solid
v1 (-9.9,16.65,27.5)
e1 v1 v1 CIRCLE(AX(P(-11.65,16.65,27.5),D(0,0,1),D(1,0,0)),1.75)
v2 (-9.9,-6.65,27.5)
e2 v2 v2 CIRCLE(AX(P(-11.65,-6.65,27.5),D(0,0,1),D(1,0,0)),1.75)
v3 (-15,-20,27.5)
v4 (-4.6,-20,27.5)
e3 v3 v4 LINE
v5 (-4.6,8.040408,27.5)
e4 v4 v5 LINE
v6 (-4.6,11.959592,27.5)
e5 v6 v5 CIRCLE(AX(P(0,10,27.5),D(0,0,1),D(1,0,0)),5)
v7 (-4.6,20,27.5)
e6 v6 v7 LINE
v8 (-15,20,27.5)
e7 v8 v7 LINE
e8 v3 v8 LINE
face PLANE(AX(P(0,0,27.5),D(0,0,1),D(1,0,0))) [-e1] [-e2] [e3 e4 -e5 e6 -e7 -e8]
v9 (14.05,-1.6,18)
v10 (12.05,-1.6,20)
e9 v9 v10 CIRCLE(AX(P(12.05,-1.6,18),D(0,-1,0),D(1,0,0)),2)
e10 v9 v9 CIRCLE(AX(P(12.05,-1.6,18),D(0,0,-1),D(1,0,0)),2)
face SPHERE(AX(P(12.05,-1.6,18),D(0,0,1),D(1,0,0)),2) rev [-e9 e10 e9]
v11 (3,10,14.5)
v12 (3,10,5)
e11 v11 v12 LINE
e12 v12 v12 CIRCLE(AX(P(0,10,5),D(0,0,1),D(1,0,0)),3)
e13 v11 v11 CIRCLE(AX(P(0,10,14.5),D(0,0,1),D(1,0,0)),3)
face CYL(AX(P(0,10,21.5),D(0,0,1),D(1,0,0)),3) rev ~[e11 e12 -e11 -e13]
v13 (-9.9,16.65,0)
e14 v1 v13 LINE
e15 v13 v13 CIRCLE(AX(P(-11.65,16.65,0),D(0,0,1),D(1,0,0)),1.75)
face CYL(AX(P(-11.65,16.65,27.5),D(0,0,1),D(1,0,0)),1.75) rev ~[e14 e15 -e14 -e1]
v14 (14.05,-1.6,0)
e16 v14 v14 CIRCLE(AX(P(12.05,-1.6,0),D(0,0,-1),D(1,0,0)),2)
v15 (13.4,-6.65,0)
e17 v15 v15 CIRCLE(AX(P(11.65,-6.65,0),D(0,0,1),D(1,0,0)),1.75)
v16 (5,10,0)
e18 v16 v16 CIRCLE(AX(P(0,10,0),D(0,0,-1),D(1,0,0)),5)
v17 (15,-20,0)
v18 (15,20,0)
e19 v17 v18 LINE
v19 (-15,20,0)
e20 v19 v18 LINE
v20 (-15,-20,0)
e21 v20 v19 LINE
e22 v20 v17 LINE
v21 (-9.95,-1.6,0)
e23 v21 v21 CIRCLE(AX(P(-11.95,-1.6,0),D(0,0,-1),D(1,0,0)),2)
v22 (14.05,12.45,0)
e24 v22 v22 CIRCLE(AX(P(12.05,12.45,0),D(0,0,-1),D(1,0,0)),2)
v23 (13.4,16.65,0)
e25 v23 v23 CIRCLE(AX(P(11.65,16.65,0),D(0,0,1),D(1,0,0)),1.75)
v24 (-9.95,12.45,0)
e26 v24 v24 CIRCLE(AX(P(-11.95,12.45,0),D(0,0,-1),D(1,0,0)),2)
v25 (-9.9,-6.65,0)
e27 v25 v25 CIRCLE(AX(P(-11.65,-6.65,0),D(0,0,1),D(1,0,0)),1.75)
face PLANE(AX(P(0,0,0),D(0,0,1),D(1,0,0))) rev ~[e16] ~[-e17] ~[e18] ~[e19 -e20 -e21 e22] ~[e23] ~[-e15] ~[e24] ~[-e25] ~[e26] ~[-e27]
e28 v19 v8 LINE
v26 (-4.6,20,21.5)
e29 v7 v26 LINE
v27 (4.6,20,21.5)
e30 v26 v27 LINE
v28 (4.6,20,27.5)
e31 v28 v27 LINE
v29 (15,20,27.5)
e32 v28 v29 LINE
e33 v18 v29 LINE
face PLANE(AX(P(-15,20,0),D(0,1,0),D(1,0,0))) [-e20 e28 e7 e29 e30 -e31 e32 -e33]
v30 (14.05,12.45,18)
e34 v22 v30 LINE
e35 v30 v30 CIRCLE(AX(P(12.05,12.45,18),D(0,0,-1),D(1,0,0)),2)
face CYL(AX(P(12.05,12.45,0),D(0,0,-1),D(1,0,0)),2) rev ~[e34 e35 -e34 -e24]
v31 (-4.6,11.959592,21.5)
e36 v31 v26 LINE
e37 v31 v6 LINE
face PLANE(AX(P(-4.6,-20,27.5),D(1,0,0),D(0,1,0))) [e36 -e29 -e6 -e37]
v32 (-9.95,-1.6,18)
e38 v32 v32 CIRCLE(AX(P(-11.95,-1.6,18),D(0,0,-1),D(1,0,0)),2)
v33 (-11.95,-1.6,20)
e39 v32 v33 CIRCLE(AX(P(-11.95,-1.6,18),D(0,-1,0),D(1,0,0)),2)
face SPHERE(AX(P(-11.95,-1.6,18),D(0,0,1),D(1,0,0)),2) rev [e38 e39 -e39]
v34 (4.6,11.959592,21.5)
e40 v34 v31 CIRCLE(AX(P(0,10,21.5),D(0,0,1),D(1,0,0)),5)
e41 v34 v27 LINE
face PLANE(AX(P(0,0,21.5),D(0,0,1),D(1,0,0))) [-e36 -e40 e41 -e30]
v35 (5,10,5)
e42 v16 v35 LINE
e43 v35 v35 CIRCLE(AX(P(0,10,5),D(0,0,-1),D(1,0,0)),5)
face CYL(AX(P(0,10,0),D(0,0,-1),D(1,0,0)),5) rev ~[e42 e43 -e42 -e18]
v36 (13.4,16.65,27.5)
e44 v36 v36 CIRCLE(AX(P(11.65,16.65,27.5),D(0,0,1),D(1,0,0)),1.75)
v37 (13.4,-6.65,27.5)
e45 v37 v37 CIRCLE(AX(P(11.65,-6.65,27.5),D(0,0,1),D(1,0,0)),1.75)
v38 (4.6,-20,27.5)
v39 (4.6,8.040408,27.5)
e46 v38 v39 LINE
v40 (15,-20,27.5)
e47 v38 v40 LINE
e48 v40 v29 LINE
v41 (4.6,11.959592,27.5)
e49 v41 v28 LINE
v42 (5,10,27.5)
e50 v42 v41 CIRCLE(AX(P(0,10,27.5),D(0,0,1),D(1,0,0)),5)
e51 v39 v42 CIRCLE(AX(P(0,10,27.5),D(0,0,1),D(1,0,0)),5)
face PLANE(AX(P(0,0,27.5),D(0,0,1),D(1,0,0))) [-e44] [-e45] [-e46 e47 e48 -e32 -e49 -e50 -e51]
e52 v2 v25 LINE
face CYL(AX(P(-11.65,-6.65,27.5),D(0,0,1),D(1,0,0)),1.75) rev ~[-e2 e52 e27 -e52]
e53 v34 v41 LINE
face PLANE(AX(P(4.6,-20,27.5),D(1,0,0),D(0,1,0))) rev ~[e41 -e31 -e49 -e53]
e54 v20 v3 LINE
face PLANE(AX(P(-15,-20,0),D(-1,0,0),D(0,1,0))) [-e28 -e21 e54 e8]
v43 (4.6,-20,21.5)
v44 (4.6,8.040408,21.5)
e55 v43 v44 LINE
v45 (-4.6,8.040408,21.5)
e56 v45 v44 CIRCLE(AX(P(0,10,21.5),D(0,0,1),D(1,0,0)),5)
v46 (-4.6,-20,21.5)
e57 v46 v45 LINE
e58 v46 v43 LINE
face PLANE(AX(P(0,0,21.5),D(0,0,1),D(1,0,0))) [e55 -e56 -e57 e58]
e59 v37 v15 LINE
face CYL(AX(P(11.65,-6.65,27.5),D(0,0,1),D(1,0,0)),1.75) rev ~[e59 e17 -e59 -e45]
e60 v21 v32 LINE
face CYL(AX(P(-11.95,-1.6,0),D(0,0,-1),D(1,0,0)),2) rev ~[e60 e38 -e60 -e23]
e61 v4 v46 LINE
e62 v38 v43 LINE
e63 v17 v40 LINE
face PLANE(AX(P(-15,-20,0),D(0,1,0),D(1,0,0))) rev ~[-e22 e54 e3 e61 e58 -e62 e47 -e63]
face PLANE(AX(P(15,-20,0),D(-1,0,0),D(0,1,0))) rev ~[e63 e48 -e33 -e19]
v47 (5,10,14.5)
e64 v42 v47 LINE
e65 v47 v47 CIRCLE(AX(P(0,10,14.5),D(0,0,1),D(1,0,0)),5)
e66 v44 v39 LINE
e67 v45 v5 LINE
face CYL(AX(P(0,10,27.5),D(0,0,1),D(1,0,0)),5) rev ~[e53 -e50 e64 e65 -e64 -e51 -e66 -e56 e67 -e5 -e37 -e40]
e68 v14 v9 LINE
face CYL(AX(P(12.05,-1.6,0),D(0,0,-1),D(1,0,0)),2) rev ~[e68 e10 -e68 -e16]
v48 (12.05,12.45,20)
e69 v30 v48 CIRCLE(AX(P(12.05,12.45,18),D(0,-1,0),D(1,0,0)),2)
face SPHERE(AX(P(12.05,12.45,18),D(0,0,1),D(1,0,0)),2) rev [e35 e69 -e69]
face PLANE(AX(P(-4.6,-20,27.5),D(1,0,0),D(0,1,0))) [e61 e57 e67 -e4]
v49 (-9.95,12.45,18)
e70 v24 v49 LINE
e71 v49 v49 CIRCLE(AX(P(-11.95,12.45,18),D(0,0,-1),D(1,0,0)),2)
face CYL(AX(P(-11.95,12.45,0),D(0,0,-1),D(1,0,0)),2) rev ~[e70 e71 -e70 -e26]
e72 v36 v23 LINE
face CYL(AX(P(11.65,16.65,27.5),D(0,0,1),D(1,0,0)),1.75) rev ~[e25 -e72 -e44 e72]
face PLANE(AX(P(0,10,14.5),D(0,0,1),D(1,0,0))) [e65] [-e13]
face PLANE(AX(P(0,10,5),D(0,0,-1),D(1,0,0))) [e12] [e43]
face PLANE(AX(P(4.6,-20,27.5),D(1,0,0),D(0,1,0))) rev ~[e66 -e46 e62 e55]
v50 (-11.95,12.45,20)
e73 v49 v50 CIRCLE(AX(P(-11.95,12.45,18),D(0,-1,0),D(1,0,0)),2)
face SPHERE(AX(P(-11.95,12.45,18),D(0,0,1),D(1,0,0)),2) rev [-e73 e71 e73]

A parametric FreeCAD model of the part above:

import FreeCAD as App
import Part
import Sketcher
from FreeCAD import Vector


def edges_at(feature, points):
    """Names of the edges that pass closest to the given points."""
    edges = feature.Shape.Edges
    near = lambda p: min(range(len(edges)), key=lambda i: edges[i].distToShape(Part.Vertex(*p))[0])
    return sorted({f"Edge{near(p) + 1}" for p in points})


def add_polygon(sketch, points):
    """Adds a closed chain of lines whose ends are joined by coincident constraints."""
    first, n = sketch.GeometryCount, len(points)
    for a, b in zip(points, points[1:] + points[:1]):
        sketch.addGeometry(Part.LineSegment(App.Vector(*a, 0), App.Vector(*b, 0)), False)
    for i in range(n):
        sketch.addConstraint(Sketcher.Constraint("Coincident", first + i, 2, first + (i + 1) % n, 1))

doc = App.newDocument("Part")
body = doc.addObject("PartDesign::Body", "Body")

sketch1 = doc.addObject("Sketcher::SketchObject", "Sketch")
body.addObject(sketch1)
sketch1.AttachmentSupport = (doc.XY_Plane, [""])
sketch1.MapMode = "FlatFace"
add_polygon(sketch1, [(-15, 20), (-15, -20), (15, -20), (15, 20)])
sketch1.addConstraint(Sketcher.Constraint("Vertical", 0))
sketch1.addConstraint(Sketcher.Constraint("Horizontal", 1))
sketch1.addConstraint(Sketcher.Constraint("Vertical", 2))
sketch1.addConstraint(Sketcher.Constraint("Horizontal", 3))
sketch1.addConstraint(Sketcher.Constraint("Symmetric", 0, 2, 2, 2, -1, 1))
sketch1.addConstraint(Sketcher.Constraint("DistanceX", 1, 1, 1, 2, 30.0))
sketch1.addConstraint(Sketcher.Constraint("DistanceY", 0, 2, 0, 1, 40.0))
pad1 = doc.addObject("PartDesign::Pad", "Pad")
body.addObject(pad1)
pad1.Profile = sketch1
pad1.Length = 27.5

sketch2 = doc.addObject("Sketcher::SketchObject", "Sketch001")
body.addObject(sketch2)
sketch2.AttachmentSupport = (doc.XY_Plane, [""])
sketch2.MapMode = "FlatFace"
sketch2.AttachmentOffset = App.Placement(Vector(0, 0, 27.5), App.Rotation())
add_polygon(sketch2, [(-4.6, 20), (-4.6, -20), (4.6, -20), (4.6, 20)])
sketch2.addConstraint(Sketcher.Constraint("Vertical", 0))
sketch2.addConstraint(Sketcher.Constraint("Horizontal", 1))
sketch2.addConstraint(Sketcher.Constraint("Vertical", 2))
sketch2.addConstraint(Sketcher.Constraint("Horizontal", 3))
sketch2.addConstraint(Sketcher.Constraint("Symmetric", 0, 2, 2, 2, -1, 1))
sketch2.addConstraint(Sketcher.Constraint("DistanceY", 0, 2, 0, 1, 40.0))
sketch2.addConstraint(Sketcher.Constraint("DistanceX", 1, 1, 1, 2, 9.2))
pocket1 = doc.addObject("PartDesign::Pocket", "Pocket")
body.addObject(pocket1)
pocket1.Profile = sketch2
pocket1.Length = 6

sketch3 = doc.addObject("Sketcher::SketchObject", "Sketch002")
body.addObject(sketch3)
sketch3.AttachmentSupport = (doc.XY_Plane, [""])
sketch3.MapMode = "FlatFace"
sketch3.AttachmentOffset = App.Placement(Vector(0, 0, 27.5), App.Rotation())
sketch3.addGeometry(Part.Circle(Vector(-11.65, 16.65, 0), Vector(0, 0, 1), 1.75), False)
sketch3.addGeometry(Part.Circle(Vector(-11.65, -6.65, 0), Vector(0, 0, 1), 1.75), False)
sketch3.addGeometry(Part.Circle(Vector(11.65, 16.65, 0), Vector(0, 0, 1), 1.75), False)
sketch3.addGeometry(Part.Circle(Vector(11.65, -6.65, 0), Vector(0, 0, 1), 1.75), False)
sketch3.addConstraint(Sketcher.Constraint("Equal", 0, 1))
sketch3.addConstraint(Sketcher.Constraint("Equal", 1, 2))
sketch3.addConstraint(Sketcher.Constraint("Equal", 2, 3))
sketch3.addConstraint(Sketcher.Constraint("Symmetric", 0, 3, 2, 3, -2))
sketch3.addConstraint(Sketcher.Constraint("Symmetric", 1, 3, 3, 3, -2))
sketch3.addConstraint(Sketcher.Constraint("Vertical", 0, 3, 1, 3))
sketch3.addConstraint(Sketcher.Constraint("Diameter", 0, 3.5))
sketch3.addConstraint(Sketcher.Constraint("DistanceY", 1, 3, 0, 3, 23.3))
sketch3.addConstraint(Sketcher.Constraint("DistanceX", 0, 3, 2, 3, 23.3))
sketch3.addConstraint(Sketcher.Constraint("DistanceY", -1, 1, 0, 3, 16.65))
pocket2 = doc.addObject("PartDesign::Pocket", "Pocket001")
body.addObject(pocket2)
pocket2.Profile = sketch3
pocket2.Type = "ThroughAll"

sketch4 = doc.addObject("Sketcher::SketchObject", "Sketch003")
body.addObject(sketch4)
sketch4.AttachmentSupport = (doc.XY_Plane, [""])
sketch4.MapMode = "FlatFace"
sketch4.AttachmentOffset = App.Placement(Vector(0, 0, 21.5), App.Rotation())
sketch4.addGeometry(Part.Circle(Vector(0, 10, 0), Vector(0, 0, 1), 3), False)
sketch4.addConstraint(Sketcher.Constraint("PointOnObject", 0, 3, -2))
sketch4.addConstraint(Sketcher.Constraint("Diameter", 0, 6.0))
sketch4.addConstraint(Sketcher.Constraint("DistanceY", -1, 1, 0, 3, 10.0))
pocket3 = doc.addObject("PartDesign::Pocket", "Pocket002")
body.addObject(pocket3)
pocket3.Profile = sketch4
pocket3.Type = "ThroughAll"

sketch5 = doc.addObject("Sketcher::SketchObject", "Sketch004")
body.addObject(sketch5)
sketch5.AttachmentSupport = (doc.XY_Plane, [""])
sketch5.MapMode = "FlatFace"
sketch5.AttachmentOffset = App.Placement(Vector(0, 0, 27.5), App.Rotation())
sketch5.addGeometry(Part.Circle(Vector(0, 10, 0), Vector(0, 0, 1), 5), False)
sketch5.addConstraint(Sketcher.Constraint("PointOnObject", 0, 3, -2))
sketch5.addConstraint(Sketcher.Constraint("Diameter", 0, 10.0))
sketch5.addConstraint(Sketcher.Constraint("DistanceY", -1, 1, 0, 3, 10.0))
pocket4 = doc.addObject("PartDesign::Pocket", "Pocket003")
body.addObject(pocket4)
pocket4.Profile = sketch5
pocket4.Length = 13

sketch6 = doc.addObject("Sketcher::SketchObject", "Sketch005")
body.addObject(sketch6)
sketch6.AttachmentSupport = (doc.XY_Plane, [""])
sketch6.MapMode = "FlatFace"
sketch6.addGeometry(Part.Circle(Vector(0, 10, 0), Vector(0, 0, 1), 5), False)
sketch6.addConstraint(Sketcher.Constraint("PointOnObject", 0, 3, -2))
sketch6.addConstraint(Sketcher.Constraint("Diameter", 0, 10.0))
sketch6.addConstraint(Sketcher.Constraint("DistanceY", -1, 1, 0, 3, 10.0))
pocket5 = doc.addObject("PartDesign::Pocket", "Pocket004")
body.addObject(pocket5)
pocket5.Profile = sketch6
pocket5.Length = 5
pocket5.Reversed = True

sketch7 = doc.addObject("Sketcher::SketchObject", "Sketch006")
body.addObject(sketch7)
sketch7.AttachmentSupport = (doc.XY_Plane, [""])
sketch7.MapMode = "FlatFace"
sketch7.addGeometry(Part.Circle(Vector(-11.95, -1.6, 0), Vector(0, 0, 1), 2), False)
sketch7.addGeometry(Part.Circle(Vector(-11.95, 12.45, 0), Vector(0, 0, 1), 2), False)
sketch7.addGeometry(Part.Circle(Vector(12.05, -1.6, 0), Vector(0, 0, 1), 2), False)
sketch7.addGeometry(Part.Circle(Vector(12.05, 12.45, 0), Vector(0, 0, 1), 2), False)
sketch7.addConstraint(Sketcher.Constraint("Equal", 0, 1))
sketch7.addConstraint(Sketcher.Constraint("Equal", 1, 2))
sketch7.addConstraint(Sketcher.Constraint("Equal", 2, 3))
sketch7.addConstraint(Sketcher.Constraint("Horizontal", 0, 3, 2, 3))
sketch7.addConstraint(Sketcher.Constraint("Horizontal", 1, 3, 3, 3))
sketch7.addConstraint(Sketcher.Constraint("Vertical", 0, 3, 1, 3))
sketch7.addConstraint(Sketcher.Constraint("Vertical", 2, 3, 3, 3))
sketch7.addConstraint(Sketcher.Constraint("Diameter", 0, 4.0))
sketch7.addConstraint(Sketcher.Constraint("DistanceX", 0, 3, 2, 3, 24.0))
sketch7.addConstraint(Sketcher.Constraint("DistanceY", 0, 3, -1, 1, 1.6))
sketch7.addConstraint(Sketcher.Constraint("DistanceX", 0, 3, -1, 1, 11.95))
sketch7.addConstraint(Sketcher.Constraint("DistanceY", -1, 1, 1, 3, 12.45))
pocket6 = doc.addObject("PartDesign::Pocket", "Pocket005")
body.addObject(pocket6)
pocket6.Profile = sketch7
pocket6.Length = 20
pocket6.Reversed = True
doc.recompute()

fillet = doc.addObject("PartDesign::Fillet", "Fillet")
body.addObject(fillet)
fillet.Base = (pocket6, edges_at(pocket6, [
    (-13.95, -1.6, 20),
    (-13.95, 12.45, 20),
    (10.05, -1.6, 20),
    (10.05, 12.45, 20),
]))
fillet.Radius = 2

doc.recompute()
